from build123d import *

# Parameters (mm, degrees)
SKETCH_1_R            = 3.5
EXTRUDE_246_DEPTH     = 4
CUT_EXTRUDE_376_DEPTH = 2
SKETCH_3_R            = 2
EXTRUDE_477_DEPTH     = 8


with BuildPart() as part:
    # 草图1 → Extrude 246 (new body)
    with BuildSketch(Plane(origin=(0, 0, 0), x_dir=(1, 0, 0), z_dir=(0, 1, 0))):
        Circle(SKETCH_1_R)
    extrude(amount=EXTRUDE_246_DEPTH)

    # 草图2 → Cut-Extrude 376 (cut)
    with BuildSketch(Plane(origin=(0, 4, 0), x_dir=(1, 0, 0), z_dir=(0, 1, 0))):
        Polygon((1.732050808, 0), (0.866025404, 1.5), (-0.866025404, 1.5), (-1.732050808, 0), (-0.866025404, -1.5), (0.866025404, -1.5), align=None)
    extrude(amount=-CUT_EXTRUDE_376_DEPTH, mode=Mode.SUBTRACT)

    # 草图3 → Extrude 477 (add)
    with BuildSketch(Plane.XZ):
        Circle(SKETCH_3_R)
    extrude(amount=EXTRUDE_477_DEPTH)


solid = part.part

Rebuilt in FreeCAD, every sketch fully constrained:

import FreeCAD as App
import Part
import Sketcher
Q = App.Units.Quantity


def add_polygon(sketch, points):
    """Adds a closed chain of lines whose ends are joined by coincident constraints."""
    first, n = sketch.GeometryCount, len(points)
    for a, b in zip(points, points[1:] + points[:1]):
        sketch.addGeometry(Part.LineSegment(App.Vector(*a, 0), App.Vector(*b, 0)), False)
    for i in range(n):
        sketch.addConstraint(Sketcher.Constraint("Coincident", first + i, 2, first + (i + 1) % n, 1))

doc = App.newDocument("Part")
body = doc.addObject("PartDesign::Body", "Body")

# Sketch on XZ plane
sketch1 = body.newObject("Sketcher::SketchObject", "Sketch")
sketch1.AttachmentSupport = (doc.getObject("XZ_Plane"), [""])
sketch1.MapMode = "FlatFace"
sketch1.addGeometry(Part.Circle(App.Vector(0, 0, 0), App.Vector(0, 0, 1), 3.5), False)
sketch1.addConstraint(Sketcher.Constraint("Coincident", 0, 3, -1, 1))
sketch1.addConstraint(Sketcher.Constraint("Diameter", 0, 7.0))
pad1 = body.newObject("PartDesign::Pad", "Pad")
pad1.Profile = sketch1
pad1.Length = 4
pad1.Reversed = True

# Sketch on XZ plane
sketch2 = body.newObject("Sketcher::SketchObject", "Sketch001")
sketch2.AttachmentSupport = (doc.getObject("XZ_Plane"), [""])
sketch2.MapMode = "FlatFace"
sketch2.AttachmentOffset = App.Placement(App.Vector(0, 0, -4), App.Rotation())
add_polygon(sketch2, [(1.7, 0), (0.9, -1.5), (-0.9, -1.5), (-1.7, 0), (-0.9, 1.5), (0.9, 1.5)])  # lines 0-5
sketch2.addConstraint(Sketcher.Constraint("Horizontal", 1))
sketch2.addConstraint(Sketcher.Constraint("Horizontal", 4))
sketch2.addConstraint(Sketcher.Constraint("Symmetric", 0, 2, 3, 2, -1, 1))
sketch2.addConstraint(Sketcher.Constraint("Symmetric", 2, 2, 5, 2, -1, 1))
sketch2.addConstraint(Sketcher.Constraint("PointOnObject", 2, 2, -1))
sketch2.addConstraint(Sketcher.Constraint("Parallel", 2, 5))
sketch2.addConstraint(Sketcher.Constraint("Vertical", 1, 2, 3, 2))
sketch2.addConstraint(Sketcher.Constraint("Angle", 0, Q("-120 deg")))
sketch2.addConstraint(Sketcher.Constraint("DistanceY", 1, 2, 3, 2, 3.0))
sketch2.addConstraint(Sketcher.Constraint("DistanceX", 1, 2, 1, 1, 1.732051))
pocket1 = body.newObject("PartDesign::Pocket", "Pocket")
pocket1.Profile = sketch2
pocket1.Length = 2
pocket1.Reversed = True

# Sketch on XZ plane
sketch3 = body.newObject("Sketcher::SketchObject", "Sketch002")
sketch3.AttachmentSupport = (doc.getObject("XZ_Plane"), [""])
sketch3.MapMode = "FlatFace"
sketch3.addGeometry(Part.Circle(App.Vector(0, 0, 0), App.Vector(0, 0, 1), 2), False)
sketch3.addConstraint(Sketcher.Constraint("Coincident", 0, 3, -1, 1))
sketch3.addConstraint(Sketcher.Constraint("Diameter", 0, 4.0))
pad2 = body.newObject("PartDesign::Pad", "Pad001")
pad2.Profile = sketch3
pad2.Length = 8

doc.recompute()
